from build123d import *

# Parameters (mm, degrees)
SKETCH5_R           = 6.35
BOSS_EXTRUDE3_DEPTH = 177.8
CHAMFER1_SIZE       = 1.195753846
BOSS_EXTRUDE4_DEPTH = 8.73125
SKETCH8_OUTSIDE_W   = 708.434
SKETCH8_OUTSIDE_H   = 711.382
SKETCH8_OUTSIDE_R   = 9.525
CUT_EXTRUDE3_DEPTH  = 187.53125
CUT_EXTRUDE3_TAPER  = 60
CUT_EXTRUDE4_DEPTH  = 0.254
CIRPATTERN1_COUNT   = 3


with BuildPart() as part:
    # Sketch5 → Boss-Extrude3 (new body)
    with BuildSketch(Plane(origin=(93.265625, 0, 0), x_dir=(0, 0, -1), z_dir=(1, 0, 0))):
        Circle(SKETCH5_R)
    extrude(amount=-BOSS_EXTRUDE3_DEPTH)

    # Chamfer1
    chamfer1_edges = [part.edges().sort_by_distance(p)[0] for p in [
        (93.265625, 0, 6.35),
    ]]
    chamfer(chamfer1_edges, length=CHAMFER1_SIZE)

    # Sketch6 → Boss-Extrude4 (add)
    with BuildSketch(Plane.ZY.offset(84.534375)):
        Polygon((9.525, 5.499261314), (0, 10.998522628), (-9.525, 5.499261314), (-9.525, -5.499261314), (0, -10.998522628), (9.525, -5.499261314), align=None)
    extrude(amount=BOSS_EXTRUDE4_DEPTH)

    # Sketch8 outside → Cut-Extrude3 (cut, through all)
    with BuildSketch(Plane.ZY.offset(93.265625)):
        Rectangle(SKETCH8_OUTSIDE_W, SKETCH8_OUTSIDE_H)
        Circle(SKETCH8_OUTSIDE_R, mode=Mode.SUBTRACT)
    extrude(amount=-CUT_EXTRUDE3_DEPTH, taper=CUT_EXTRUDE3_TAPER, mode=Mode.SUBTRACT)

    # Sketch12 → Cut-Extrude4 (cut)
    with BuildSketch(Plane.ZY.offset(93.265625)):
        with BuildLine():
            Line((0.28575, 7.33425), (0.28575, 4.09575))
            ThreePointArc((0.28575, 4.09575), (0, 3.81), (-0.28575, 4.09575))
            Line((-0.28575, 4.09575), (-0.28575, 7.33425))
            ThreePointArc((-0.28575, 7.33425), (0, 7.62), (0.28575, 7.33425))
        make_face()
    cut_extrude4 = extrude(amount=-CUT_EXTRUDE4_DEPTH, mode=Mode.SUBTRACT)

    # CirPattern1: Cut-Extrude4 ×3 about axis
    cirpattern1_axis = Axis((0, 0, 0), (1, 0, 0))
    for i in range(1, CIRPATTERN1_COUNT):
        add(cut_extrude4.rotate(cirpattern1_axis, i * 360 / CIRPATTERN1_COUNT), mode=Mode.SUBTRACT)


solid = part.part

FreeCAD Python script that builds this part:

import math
import FreeCAD as App
import Part
import Sketcher
from FreeCAD import Vector
Q = App.Units.Quantity


def edges_at(feature, points):
    """Names of the edges that pass closest to the given points."""
    edges = feature.Shape.Edges
    near = lambda p: min(range(len(edges)), key=lambda i: edges[i].distToShape(Part.Vertex(*p))[0])
    return sorted({f"Edge{near(p) + 1}" for p in points})


def add_polygon(sketch, points):
    """Adds a closed chain of lines whose ends are joined by coincident constraints."""
    first, n = sketch.GeometryCount, len(points)
    for a, b in zip(points, points[1:] + points[:1]):
        sketch.addGeometry(Part.LineSegment(App.Vector(*a, 0), App.Vector(*b, 0)), False)
    for i in range(n):
        sketch.addConstraint(Sketcher.Constraint("Coincident", first + i, 2, first + (i + 1) % n, 1))

doc = App.newDocument("Part")
body = doc.addObject("PartDesign::Body", "Body")

# Sketch on YZ plane
sketch1 = body.newObject("Sketcher::SketchObject", "Sketch")
sketch1.AttachmentSupport = (doc.getObject("YZ_Plane"), [""])
sketch1.MapMode = "FlatFace"
sketch1.AttachmentOffset = App.Placement(Vector(0, 0, 3.671875 * 25.4), App.Rotation())
sketch1.addGeometry(Part.Circle(Vector(0, 0, 0), Vector(0, 0, 1), 6.35), False)
sketch1.addConstraint([
    Sketcher.Constraint("Coincident", 0, 3, -1, 1),
    Sketcher.Constraint("Diameter", 0, Q("0.5 in")),
])
pad1 = body.newObject("PartDesign::Pad", "Pad")
pad1.Profile = sketch1
pad1.Length = Q("7 in")
pad1.Reversed = True
doc.recompute()

chamfer = body.newObject("PartDesign::Chamfer", "Chamfer")
chamfer.Base = (pad1, edges_at(pad1, [(93.266, 0, 6.35)]))
chamfer.Size = 1.195754

# Sketch on YZ plane
sketch2 = body.newObject("Sketcher::SketchObject", "Sketch001")
sketch2.AttachmentSupport = (doc.getObject("YZ_Plane"), [""])
sketch2.MapMode = "FlatFace"
sketch2.AttachmentOffset = App.Placement(Vector(0, 0, -3.328125 * 25.4), App.Rotation())
add_polygon(sketch2, [(5.499261, 9.525), (10.998523, 0), (5.499261, -9.525), (-5.499261, -9.525), (-10.998523, 0), (-5.499261, 9.525)])  # lines 0-5
sketch2.addConstraint([
    Sketcher.Constraint("Horizontal", 2),
    Sketcher.Constraint("Horizontal", 5),
    Sketcher.Constraint("Symmetric", 0, 2, 3, 2, -1, 1),
    Sketcher.Constraint("Symmetric", 1, 2, 4, 2, -1, 1),
    Sketcher.Constraint("PointOnObject", 0, 2, -1),
    Sketcher.Constraint("Parallel", 0, 3),
    Sketcher.Constraint("Vertical", 2, 2, 4, 2),
    Sketcher.Constraint("Angle", 0, Q("-60 deg")),
    Sketcher.Constraint("DistanceY", 2, 2, 4, 2, Q("0.75 in")),
    Sketcher.Constraint("DistanceX", 2, 2, 2, 1, Q("10.998523 mm")),
])
pad2 = body.newObject("PartDesign::Pad", "Pad001")
pad2.Profile = sketch2
pad2.Length = Q("0.34375 in")
pad2.Reversed = True

# Sketch on YZ plane
sketch3 = body.newObject("Sketcher::SketchObject", "Sketch002")
sketch3.AttachmentSupport = (doc.getObject("YZ_Plane"), [""])
sketch3.MapMode = "FlatFace"
sketch3.AttachmentOffset = App.Placement(Vector(0, 0, -3.671875 * 25.4), App.Rotation())
add_polygon(sketch3, [(355.691, -354.217), (-355.691, -354.217), (-355.691, 354.217), (355.691, 354.217)])  # lines 0-3
sketch3.addGeometry(Part.Circle(Vector(0, 0, 0), Vector(0, 0, 1), 9.525), False)  # 4
sketch3.addConstraint([
    Sketcher.Constraint("Horizontal", 0),
    Sketcher.Constraint("Vertical", 1),
    Sketcher.Constraint("Horizontal", 2),
    Sketcher.Constraint("Vertical", 3),
    Sketcher.Constraint("Coincident", 4, 3, -1, 1),
    Sketcher.Constraint("Symmetric", 0, 2, 2, 2, -1, 1),
    Sketcher.Constraint("Diameter", 4, Q("0.75 in")),
    Sketcher.Constraint("DistanceX", 0, 2, 0, 1, Q("711.382 mm")),
    Sketcher.Constraint("DistanceY", 1, 1, 1, 2, Q("708.434 mm")),
])
pocket1 = body.newObject("PartDesign::Pocket", "Pocket")
pocket1.Profile = sketch3
pocket1.Length = 187.53125
pocket1.Reversed = True
pocket1.TaperAngle = 60

# Sketch on YZ plane
sketch4 = body.newObject("Sketcher::SketchObject", "Sketch003")
sketch4.AttachmentSupport = (doc.getObject("YZ_Plane"), [""])
sketch4.MapMode = "FlatFace"
sketch4.AttachmentOffset = App.Placement(Vector(0, 0, -3.671875 * 25.4), App.Rotation())
sketch4.addGeometry([
    Part.LineSegment(Vector(4.09575, 0.28575, 0), Vector(7.33425, 0.28575, 0)),
    Part.ArcOfCircle(Part.Circle(Vector(7.33425, 0, 0), Vector(0, 0, 1), 0.28575), math.radians(-90), math.radians(90)),
    Part.LineSegment(Vector(7.33425, -0.28575, 0), Vector(4.09575, -0.28575, 0)),
    Part.ArcOfCircle(Part.Circle(Vector(4.09575, 0, 0), Vector(0, 0, 1), 0.28575), math.radians(90), math.radians(270)),
], False)
sketch4.addConstraint([
    Sketcher.Constraint("Tangent", 0, 2, 1, 2),
    Sketcher.Constraint("Tangent", 1, 1, 2, 1),
    Sketcher.Constraint("Tangent", 2, 2, 3, 2),
    Sketcher.Constraint("Tangent", 3, 1, 0, 1),
    Sketcher.Constraint("Horizontal", 0),
    Sketcher.Constraint("Horizontal", 2),
    Sketcher.Constraint("PointOnObject", 1, 3, -1),
    Sketcher.Constraint("DistanceX", 0, 1, 0, 2, Q("0.1275 in")),
    Sketcher.Constraint("Radius", 1, Q("0.28575 mm")),
    Sketcher.Constraint("DistanceX", -1, 1, 1, 3, Q("7.33425 mm")),
])
pocket2 = body.newObject("PartDesign::Pocket", "Pocket001")
pocket2.Profile = sketch4
pocket2.Length = Q("0.01 in")
pocket2.Reversed = True
doc.recompute()

polarpattern = body.newObject("PartDesign::PolarPattern", "PolarPattern")
polarpattern.Originals = [pocket2]
polarpattern.Axis = (doc.getObject("X_Axis"), [""])
polarpattern.Angle = 360
polarpattern.Occurrences = 3
body.Tip = polarpattern

doc.recompute()
